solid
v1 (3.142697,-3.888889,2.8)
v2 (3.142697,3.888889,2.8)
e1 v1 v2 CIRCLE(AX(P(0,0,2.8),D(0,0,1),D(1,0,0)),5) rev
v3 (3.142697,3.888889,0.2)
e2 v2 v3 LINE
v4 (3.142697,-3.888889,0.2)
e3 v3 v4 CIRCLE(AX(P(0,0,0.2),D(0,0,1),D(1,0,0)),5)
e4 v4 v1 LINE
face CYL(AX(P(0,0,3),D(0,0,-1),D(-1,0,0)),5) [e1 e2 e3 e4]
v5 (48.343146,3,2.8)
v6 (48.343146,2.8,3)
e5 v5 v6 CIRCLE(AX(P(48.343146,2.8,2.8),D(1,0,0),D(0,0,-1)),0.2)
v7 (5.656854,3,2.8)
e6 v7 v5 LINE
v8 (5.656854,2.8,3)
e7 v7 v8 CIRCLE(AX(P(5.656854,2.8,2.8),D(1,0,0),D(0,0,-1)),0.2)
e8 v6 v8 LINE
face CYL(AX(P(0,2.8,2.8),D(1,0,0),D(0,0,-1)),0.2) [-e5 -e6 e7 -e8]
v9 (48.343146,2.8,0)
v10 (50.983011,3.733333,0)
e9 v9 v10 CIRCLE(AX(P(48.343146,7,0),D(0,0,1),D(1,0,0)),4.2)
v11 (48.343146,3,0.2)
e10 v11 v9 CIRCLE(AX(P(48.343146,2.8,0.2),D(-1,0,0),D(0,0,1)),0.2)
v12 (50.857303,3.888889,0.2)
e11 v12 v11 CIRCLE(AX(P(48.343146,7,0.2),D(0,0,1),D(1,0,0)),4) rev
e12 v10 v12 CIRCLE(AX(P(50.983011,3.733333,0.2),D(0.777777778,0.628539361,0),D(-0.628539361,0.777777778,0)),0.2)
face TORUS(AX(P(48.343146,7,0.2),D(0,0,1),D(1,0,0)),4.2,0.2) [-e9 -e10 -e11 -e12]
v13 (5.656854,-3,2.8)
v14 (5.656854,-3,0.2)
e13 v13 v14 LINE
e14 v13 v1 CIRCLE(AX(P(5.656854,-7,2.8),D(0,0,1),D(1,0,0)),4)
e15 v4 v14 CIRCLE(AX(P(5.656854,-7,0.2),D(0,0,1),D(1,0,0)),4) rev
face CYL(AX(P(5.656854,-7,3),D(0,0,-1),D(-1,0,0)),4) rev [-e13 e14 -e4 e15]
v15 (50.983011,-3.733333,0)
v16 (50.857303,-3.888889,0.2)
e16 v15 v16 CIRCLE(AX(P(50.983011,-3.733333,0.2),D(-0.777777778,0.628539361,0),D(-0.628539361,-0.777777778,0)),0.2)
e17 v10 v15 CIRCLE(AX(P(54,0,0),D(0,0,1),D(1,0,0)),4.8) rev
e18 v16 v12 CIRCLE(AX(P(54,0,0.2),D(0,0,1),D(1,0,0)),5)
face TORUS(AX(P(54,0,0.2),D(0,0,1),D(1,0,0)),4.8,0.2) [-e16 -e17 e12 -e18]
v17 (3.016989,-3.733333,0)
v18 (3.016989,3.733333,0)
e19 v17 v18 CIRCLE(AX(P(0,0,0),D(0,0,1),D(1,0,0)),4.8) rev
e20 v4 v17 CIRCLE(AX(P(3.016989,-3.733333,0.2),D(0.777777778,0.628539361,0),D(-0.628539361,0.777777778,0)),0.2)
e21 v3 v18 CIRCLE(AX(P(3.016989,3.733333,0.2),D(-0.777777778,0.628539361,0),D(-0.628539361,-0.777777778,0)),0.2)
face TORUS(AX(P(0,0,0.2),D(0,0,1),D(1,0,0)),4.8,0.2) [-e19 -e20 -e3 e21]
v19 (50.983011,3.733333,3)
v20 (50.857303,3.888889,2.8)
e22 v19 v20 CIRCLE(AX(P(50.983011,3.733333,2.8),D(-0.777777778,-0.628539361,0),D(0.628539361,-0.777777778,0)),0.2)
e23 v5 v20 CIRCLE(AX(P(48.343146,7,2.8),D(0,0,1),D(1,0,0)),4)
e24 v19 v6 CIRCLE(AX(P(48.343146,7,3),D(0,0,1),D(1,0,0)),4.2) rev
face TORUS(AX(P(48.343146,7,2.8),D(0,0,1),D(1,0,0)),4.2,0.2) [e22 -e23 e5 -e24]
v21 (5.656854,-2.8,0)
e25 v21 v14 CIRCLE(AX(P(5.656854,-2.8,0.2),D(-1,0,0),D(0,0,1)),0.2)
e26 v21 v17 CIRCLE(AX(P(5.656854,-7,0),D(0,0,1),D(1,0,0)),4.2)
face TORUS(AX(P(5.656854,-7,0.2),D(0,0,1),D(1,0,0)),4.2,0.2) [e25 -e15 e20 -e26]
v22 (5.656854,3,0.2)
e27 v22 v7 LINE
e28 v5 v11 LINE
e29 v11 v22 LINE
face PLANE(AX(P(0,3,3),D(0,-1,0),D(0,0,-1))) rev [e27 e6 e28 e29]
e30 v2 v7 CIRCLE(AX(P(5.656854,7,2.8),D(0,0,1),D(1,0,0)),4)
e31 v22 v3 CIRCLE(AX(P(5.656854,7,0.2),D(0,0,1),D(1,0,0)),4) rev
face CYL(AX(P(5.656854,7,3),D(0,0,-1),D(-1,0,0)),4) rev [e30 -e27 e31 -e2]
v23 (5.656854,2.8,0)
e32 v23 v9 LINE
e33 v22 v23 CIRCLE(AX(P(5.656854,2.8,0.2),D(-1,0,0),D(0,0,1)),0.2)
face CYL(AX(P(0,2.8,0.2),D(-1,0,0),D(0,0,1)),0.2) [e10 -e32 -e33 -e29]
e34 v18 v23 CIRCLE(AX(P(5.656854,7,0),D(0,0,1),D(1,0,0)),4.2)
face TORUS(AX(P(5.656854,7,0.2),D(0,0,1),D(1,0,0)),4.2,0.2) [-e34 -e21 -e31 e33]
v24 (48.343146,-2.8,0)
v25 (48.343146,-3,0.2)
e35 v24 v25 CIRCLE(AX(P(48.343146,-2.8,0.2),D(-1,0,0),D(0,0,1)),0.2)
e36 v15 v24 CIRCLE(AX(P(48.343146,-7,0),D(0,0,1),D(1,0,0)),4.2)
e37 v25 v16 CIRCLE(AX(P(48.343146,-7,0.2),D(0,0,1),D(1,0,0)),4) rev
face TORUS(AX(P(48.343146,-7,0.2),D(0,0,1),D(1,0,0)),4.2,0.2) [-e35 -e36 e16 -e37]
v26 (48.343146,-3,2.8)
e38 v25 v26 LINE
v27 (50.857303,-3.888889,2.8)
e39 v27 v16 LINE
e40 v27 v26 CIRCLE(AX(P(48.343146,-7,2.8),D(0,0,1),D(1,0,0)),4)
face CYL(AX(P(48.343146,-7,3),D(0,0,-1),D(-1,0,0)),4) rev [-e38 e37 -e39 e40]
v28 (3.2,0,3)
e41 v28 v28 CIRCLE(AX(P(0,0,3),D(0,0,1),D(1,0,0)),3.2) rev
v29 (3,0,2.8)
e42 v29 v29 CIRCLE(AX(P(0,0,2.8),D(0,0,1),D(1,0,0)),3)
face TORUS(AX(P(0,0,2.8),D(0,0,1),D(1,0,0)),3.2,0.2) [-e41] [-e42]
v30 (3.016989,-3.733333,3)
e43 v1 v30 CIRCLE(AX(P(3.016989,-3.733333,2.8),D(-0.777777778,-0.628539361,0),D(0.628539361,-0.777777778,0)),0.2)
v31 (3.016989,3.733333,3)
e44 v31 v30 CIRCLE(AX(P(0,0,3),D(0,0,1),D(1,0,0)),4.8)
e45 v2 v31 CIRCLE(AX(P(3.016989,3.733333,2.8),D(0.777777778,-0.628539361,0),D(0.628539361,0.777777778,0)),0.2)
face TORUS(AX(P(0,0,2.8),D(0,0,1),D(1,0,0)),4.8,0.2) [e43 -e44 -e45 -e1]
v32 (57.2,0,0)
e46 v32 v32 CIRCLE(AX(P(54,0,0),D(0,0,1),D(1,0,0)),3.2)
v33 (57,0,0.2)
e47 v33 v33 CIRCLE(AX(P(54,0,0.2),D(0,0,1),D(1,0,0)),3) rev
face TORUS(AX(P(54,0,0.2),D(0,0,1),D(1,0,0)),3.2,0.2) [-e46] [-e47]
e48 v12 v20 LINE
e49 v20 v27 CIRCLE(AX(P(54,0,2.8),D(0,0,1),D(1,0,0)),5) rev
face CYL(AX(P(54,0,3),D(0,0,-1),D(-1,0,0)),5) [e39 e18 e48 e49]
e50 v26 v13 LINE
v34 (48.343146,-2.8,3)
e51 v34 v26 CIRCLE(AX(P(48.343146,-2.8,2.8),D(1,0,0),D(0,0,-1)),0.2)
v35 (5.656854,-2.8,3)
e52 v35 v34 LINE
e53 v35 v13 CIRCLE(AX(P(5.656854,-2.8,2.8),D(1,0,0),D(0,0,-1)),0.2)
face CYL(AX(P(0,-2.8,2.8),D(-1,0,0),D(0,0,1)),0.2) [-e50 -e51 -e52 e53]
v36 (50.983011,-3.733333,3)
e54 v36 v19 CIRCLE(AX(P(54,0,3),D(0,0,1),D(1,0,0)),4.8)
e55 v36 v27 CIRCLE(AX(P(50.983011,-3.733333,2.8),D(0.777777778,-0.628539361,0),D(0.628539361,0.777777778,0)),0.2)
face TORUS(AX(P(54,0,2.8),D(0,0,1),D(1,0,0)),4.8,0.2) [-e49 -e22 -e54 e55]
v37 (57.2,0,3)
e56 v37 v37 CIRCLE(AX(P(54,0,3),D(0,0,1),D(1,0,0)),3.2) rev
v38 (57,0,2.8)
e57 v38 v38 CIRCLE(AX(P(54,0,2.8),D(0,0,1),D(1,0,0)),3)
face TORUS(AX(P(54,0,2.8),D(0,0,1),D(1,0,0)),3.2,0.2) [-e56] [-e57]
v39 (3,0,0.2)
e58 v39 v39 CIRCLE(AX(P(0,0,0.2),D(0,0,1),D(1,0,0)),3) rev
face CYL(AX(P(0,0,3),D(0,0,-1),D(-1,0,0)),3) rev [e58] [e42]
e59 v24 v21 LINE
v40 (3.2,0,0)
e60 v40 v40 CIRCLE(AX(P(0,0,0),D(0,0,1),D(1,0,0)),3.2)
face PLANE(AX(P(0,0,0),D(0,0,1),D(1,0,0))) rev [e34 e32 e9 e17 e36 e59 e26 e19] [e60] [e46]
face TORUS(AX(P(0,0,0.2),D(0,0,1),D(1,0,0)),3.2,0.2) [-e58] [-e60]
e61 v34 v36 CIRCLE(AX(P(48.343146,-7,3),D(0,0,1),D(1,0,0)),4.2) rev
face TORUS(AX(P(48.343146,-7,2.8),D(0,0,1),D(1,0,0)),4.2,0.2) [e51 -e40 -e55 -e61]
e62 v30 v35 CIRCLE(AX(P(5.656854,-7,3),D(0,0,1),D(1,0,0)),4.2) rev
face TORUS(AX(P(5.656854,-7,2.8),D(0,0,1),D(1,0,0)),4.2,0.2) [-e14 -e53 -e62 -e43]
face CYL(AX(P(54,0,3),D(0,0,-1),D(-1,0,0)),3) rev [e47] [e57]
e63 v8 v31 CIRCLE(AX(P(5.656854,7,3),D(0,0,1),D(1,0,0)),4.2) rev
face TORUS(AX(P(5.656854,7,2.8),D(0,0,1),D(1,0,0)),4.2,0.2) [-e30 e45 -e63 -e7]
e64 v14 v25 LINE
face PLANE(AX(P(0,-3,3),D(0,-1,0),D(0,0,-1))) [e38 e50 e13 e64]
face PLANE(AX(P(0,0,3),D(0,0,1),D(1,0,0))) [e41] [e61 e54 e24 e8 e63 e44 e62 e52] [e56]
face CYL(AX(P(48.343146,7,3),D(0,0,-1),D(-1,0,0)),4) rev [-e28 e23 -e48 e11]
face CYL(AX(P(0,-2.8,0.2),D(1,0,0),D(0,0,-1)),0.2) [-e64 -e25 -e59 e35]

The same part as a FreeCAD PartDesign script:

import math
import FreeCAD as App
import Part
import Sketcher

V = App.Vector


def edges_at(feature, points):
    """Names of the edges that pass closest to the given points."""
    edges = feature.Shape.Edges
    near = lambda p: min(range(len(edges)), key=lambda i: edges[i].distToShape(Part.Vertex(*p))[0])
    return sorted({f"Edge{near(p) + 1}" for p in points})

doc = App.newDocument("Part")
body = doc.addObject("PartDesign::Body", "Body")

sketch1 = body.newObject("Sketcher::SketchObject", "Sketch")
sketch1.AttachmentSupport = (doc.getObject("XY_Plane"), [""])
sketch1.MapMode = "FlatFace"
sketch1.addGeometry(Part.ArcOfCircle(Part.Circle(V(0, 0, 0), V(0, 0, 1), 5), math.radians(36.869898), math.radians(323.130102)), False)
sketch1.addGeometry(Part.LineSegment(V(4, -3, 0), V(50, -3, 0)), False)
sketch1.addGeometry(Part.ArcOfCircle(Part.Circle(V(54, 0, 0), V(0, 0, 1), 5), math.radians(-143.130102), math.radians(143.130102)), False)
sketch1.addGeometry(Part.LineSegment(V(50, 3, 0), V(4, 3, 0)), False)
sketch1.addGeometry(Part.Circle(V(0, 0, 0), V(0, 0, 1), 3), False)
sketch1.addGeometry(Part.Circle(V(54, 0, 0), V(0, 0, 1), 3), False)
sketch1.addConstraint(Sketcher.Constraint("Coincident", 0, 2, 1, 1))
sketch1.addConstraint(Sketcher.Constraint("Coincident", 1, 2, 2, 1))
sketch1.addConstraint(Sketcher.Constraint("Coincident", 2, 2, 3, 1))
sketch1.addConstraint(Sketcher.Constraint("Coincident", 3, 2, 0, 1))
sketch1.addConstraint(Sketcher.Constraint("Horizontal", 1))
sketch1.addConstraint(Sketcher.Constraint("Horizontal", 3))
sketch1.addConstraint(Sketcher.Constraint("Coincident", 0, 3, -1, 1))
sketch1.addConstraint(Sketcher.Constraint("Coincident", 4, 3, -1, 1))
sketch1.addConstraint(Sketcher.Constraint("Coincident", 5, 3, 2, 3))
sketch1.addConstraint(Sketcher.Constraint("Equal", 0, 2))
sketch1.addConstraint(Sketcher.Constraint("Equal", 4, 5))
sketch1.addConstraint(Sketcher.Constraint("Symmetric", 1, 2, 2, 2, -1))
sketch1.addConstraint(Sketcher.Constraint("Diameter", 4, 6.0))
sketch1.addConstraint(Sketcher.Constraint("Radius", 0, 5.0))
sketch1.addConstraint(Sketcher.Constraint("DistanceX", 1, 1, 1, 2, 46.0))
sketch1.addConstraint(Sketcher.Constraint("DistanceX", -1, 1, 2, 3, 54.0))
pad1 = body.newObject("PartDesign::Pad", "Pad")
pad1.Profile = sketch1
pad1.Length = 3
doc.recompute()

fillet = body.newObject("PartDesign::Fillet", "Fillet")
fillet.Base = (pad1, edges_at(pad1, [
    (4, 3, 1.5),
    (50, 3, 1.5),
    (50, -3, 1.5),
    (4, -3, 1.5),
]))
fillet.Radius = 4
doc.recompute()

fillet2 = body.newObject("PartDesign::Fillet", "Fillet001")
fillet2.Base = (fillet, edges_at(fillet, [
    (-3, 0, 0),
    (59, 0, 0),
    (59, 0, 3),
    (27, -3, 0),
    (27, -3, 3),
    (-5, 0, 0),
    (-5, 0, 3),
    (27, 3, 0),
    (27, 3, 3),
    (49.676, -3.229, 0),
    (49.676, -3.229, 3),
    (4.324, -3.229, 0),
    (4.324, -3.229, 3),
    (51, 0, 3),
    (49.676, 3.229, 0),
    (49.676, 3.229, 3),
    (4.324, 3.229, 0),
    (4.324, 3.229, 3),
    (-3, 0, 3),
    (51, 0, 0),
]))
fillet2.Radius = 0.2

doc.recompute()
